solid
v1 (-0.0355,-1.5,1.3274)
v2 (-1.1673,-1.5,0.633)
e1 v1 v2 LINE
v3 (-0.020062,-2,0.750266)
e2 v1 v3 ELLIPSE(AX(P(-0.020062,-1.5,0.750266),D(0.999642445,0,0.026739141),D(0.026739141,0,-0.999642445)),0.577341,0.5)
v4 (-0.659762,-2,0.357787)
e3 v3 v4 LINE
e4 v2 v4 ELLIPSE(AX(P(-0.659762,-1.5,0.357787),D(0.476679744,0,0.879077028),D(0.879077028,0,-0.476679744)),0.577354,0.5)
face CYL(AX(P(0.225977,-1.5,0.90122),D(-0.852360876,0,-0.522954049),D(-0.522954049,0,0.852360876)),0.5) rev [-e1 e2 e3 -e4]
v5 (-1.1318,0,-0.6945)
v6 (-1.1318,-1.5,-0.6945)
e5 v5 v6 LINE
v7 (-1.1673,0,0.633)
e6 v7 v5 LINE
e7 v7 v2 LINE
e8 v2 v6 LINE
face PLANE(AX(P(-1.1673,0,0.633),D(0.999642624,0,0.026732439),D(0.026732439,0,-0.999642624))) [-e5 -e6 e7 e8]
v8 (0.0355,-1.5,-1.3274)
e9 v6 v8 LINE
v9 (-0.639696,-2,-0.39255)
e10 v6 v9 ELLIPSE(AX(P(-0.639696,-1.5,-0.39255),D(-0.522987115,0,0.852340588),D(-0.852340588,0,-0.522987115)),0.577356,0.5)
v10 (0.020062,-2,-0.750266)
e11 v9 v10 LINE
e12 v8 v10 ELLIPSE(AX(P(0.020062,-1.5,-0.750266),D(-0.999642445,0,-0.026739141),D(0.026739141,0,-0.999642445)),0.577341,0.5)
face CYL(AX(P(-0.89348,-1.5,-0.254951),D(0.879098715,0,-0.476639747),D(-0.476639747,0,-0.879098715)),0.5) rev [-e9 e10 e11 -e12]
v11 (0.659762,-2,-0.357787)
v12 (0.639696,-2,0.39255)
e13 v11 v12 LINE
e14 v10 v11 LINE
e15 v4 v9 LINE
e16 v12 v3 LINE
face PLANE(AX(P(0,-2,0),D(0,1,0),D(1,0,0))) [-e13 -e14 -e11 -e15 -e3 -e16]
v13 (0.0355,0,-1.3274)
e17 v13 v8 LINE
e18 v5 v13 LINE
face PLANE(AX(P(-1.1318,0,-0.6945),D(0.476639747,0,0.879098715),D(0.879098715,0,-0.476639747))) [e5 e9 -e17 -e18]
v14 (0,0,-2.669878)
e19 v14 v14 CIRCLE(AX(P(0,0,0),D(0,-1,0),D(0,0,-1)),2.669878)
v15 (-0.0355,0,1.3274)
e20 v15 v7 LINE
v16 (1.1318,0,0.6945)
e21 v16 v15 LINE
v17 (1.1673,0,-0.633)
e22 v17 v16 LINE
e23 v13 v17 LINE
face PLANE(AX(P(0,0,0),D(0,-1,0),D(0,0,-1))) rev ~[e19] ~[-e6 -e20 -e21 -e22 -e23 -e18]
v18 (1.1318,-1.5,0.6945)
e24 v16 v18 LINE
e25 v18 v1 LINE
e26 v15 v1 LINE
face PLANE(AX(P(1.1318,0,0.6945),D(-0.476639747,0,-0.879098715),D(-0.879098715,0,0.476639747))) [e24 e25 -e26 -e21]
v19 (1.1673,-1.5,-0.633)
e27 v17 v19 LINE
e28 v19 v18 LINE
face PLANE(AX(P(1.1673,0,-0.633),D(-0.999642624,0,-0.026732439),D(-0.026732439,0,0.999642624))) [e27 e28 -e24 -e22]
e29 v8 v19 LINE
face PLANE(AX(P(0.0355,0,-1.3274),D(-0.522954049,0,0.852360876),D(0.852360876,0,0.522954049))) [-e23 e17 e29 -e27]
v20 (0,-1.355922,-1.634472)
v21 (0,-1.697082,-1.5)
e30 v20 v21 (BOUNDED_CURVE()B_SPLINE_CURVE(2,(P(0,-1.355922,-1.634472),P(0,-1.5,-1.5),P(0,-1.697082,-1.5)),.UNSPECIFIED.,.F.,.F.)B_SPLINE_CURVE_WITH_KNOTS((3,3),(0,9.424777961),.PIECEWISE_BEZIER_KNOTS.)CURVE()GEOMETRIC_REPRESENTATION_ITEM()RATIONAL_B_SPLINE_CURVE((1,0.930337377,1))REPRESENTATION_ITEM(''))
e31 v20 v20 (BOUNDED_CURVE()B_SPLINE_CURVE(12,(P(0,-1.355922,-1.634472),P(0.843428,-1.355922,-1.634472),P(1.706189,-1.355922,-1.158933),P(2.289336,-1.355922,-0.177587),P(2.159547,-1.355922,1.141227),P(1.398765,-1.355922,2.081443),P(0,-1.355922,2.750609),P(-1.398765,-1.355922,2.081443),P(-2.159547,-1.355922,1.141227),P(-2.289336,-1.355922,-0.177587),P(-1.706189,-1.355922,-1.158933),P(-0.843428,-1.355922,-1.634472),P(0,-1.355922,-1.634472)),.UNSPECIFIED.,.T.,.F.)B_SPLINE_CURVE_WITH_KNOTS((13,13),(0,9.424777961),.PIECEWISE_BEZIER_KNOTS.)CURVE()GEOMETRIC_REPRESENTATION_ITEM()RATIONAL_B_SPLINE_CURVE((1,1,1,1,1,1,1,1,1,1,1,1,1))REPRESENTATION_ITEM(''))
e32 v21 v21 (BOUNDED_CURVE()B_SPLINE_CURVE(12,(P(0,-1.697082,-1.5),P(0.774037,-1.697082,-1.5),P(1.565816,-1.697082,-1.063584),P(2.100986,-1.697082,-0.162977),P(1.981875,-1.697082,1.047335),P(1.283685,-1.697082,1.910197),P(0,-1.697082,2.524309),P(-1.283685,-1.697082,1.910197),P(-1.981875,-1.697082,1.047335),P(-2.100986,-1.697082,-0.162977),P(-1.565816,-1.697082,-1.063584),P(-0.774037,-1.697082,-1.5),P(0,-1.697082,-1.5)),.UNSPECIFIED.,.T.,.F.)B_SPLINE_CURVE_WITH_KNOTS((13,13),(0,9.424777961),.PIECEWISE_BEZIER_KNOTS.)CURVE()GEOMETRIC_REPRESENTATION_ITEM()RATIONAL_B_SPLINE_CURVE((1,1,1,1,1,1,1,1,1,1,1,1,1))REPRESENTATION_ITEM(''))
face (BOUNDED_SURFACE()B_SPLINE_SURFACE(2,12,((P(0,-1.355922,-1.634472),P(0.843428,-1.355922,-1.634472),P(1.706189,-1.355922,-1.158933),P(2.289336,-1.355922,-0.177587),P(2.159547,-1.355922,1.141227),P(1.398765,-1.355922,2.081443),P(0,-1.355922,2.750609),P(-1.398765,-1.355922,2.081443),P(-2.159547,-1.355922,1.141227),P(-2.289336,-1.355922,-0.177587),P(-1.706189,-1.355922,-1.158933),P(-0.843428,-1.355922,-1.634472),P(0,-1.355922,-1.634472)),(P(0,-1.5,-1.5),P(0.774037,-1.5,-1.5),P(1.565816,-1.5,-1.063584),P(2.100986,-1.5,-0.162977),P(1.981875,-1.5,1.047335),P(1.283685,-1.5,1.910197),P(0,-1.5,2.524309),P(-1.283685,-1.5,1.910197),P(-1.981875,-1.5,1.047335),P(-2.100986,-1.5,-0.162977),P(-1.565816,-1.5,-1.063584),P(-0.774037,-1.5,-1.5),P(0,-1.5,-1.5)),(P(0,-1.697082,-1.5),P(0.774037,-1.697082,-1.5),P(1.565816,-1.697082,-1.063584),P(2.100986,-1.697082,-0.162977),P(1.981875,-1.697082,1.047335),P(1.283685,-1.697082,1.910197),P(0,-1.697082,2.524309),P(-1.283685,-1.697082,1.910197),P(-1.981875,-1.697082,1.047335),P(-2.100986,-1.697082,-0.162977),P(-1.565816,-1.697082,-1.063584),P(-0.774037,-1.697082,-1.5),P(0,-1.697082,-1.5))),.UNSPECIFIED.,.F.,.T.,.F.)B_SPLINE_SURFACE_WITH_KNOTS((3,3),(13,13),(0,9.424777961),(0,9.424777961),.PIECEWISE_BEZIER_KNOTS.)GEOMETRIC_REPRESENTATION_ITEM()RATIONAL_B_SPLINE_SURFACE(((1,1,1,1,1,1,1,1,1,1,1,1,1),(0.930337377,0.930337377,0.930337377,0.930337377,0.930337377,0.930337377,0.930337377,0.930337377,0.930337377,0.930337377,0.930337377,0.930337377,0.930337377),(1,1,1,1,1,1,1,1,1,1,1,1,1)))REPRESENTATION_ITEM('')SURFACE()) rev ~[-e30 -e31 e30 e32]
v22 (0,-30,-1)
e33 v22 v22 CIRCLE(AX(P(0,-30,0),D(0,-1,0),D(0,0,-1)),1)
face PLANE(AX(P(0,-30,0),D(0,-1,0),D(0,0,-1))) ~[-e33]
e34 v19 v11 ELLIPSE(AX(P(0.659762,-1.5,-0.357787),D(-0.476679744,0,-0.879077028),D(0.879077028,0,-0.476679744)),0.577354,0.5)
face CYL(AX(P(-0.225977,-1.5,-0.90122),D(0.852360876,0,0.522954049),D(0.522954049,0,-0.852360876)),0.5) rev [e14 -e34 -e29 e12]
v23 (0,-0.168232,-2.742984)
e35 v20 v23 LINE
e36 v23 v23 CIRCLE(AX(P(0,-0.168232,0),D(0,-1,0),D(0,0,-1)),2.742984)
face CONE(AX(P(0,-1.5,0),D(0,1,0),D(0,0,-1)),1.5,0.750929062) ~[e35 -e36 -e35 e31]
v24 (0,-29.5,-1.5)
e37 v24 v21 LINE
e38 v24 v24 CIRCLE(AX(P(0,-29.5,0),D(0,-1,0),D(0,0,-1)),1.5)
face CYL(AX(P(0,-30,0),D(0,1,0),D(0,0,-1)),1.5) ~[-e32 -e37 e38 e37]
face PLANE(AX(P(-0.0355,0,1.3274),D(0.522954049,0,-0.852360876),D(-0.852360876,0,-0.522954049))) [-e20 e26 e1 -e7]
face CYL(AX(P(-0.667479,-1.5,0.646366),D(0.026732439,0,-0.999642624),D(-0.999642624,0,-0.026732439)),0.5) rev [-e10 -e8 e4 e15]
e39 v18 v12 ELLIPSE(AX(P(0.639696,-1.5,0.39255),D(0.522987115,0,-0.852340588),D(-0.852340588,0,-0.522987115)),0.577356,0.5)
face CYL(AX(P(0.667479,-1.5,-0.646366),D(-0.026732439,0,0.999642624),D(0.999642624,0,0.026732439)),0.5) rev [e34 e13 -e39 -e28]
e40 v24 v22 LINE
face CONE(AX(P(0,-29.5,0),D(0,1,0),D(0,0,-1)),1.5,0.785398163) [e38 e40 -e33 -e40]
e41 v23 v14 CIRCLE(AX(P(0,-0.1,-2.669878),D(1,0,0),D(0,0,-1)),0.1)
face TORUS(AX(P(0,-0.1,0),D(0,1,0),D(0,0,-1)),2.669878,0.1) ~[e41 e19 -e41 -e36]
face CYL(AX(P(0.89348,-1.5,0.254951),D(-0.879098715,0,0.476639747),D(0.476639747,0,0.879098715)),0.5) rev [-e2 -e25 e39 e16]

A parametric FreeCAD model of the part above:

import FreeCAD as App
import Part
import Sketcher

V = App.Vector
Q = App.Units.Quantity


def edges_at(feature, points):
    """Names of the edges that pass closest to the given points."""
    edges = feature.Shape.Edges
    near = lambda p: min(range(len(edges)), key=lambda i: edges[i].distToShape(Part.Vertex(*p))[0])
    return sorted({f"Edge{near(p) + 1}" for p in points})

doc = App.newDocument("Part")
params = doc.addObject("Spreadsheet::Sheet", "Params")
for row, (alias, value) in enumerate([
    ("sketch1_width", "30 mm"),
    ("sketch1_height", "1.5 mm"),
    ("sketch1_height2", "2.9 mm"),
    ("revolution_angle", "360 deg"),
    ("pocket1_length", "2 mm"),
    ("fillet_radius", "0.5 mm"),
    ("fillet2_radius", "0.5 mm"),
    ("fillet3_radius", "0.1 mm"),
    ("chamfer_size", "0.5 mm"),
], start=1):
    params.set(f"A{row}", alias)
    params.set(f"B{row}", "=" + value)
    params.setAlias(f"B{row}", alias)

body = doc.addObject("PartDesign::Body", "Body")

# Sketch on YZ plane
sketch1 = body.newObject("Sketcher::SketchObject", "Sketch")
sketch1.AttachmentSupport = (doc.getObject("YZ_Plane"), [""])
sketch1.MapMode = "FlatFace"
sketch1.addGeometry(Part.LineSegment(V(-1.5, -1.5, 0), V(0, -2.9, 0)), False)
sketch1.addGeometry(Part.LineSegment(V(0, -2.9, 0), V(0, 0, 0)), False)
sketch1.addGeometry(Part.LineSegment(V(0, 0, 0), V(-30, 0, 0)), False)
sketch1.addGeometry(Part.LineSegment(V(-30, 0, 0), V(-30, -1.5, 0)), False)
sketch1.addGeometry(Part.LineSegment(V(-30, -1.5, 0), V(-1.5, -1.5, 0)), False)
sketch1.addConstraint(Sketcher.Constraint("Coincident", 0, 2, 1, 1))
sketch1.addConstraint(Sketcher.Constraint("Coincident", 1, 2, 2, 1))
sketch1.addConstraint(Sketcher.Constraint("Coincident", 2, 2, 3, 1))
sketch1.addConstraint(Sketcher.Constraint("Coincident", 3, 2, 4, 1))
sketch1.addConstraint(Sketcher.Constraint("Coincident", 4, 2, 0, 1))
sketch1.addConstraint(Sketcher.Constraint("Vertical", 1))
sketch1.addConstraint(Sketcher.Constraint("Horizontal", 2))
sketch1.addConstraint(Sketcher.Constraint("Vertical", 3))
sketch1.addConstraint(Sketcher.Constraint("Horizontal", 4))
sketch1.addConstraint(Sketcher.Constraint("Coincident", 1, 2, -1, 1))
sketch1.addConstraint(Sketcher.Constraint("DistanceX", 2, 2, 2, 1, Q("30 mm")))
sketch1.addConstraint(Sketcher.Constraint("DistanceY", 3, 2, 3, 1, Q("1.5 mm")))
sketch1.addConstraint(Sketcher.Constraint("DistanceX", 4, 2, -1, 1, Q("1.5 mm")))
sketch1.addConstraint(Sketcher.Constraint("DistanceY", 1, 1, 1, 2, Q("2.9 mm")))
sketch1.setExpression("Constraints[10]", "Params.sketch1_width")
sketch1.setExpression("Constraints[11]", "Params.sketch1_height")
sketch1.setExpression("Constraints[13]", "Params.sketch1_height2")
revolution = body.newObject("PartDesign::Revolution", "Revolution")
revolution.Profile = sketch1
revolution.ReferenceAxis = (sketch1, ["H_Axis"])
revolution.setExpression("Angle", "Params.revolution_angle")

# Sketch on XZ plane
sketch2 = body.newObject("Sketcher::SketchObject", "Sketch001")
sketch2.AttachmentSupport = (doc.getObject("XZ_Plane"), [""])
sketch2.MapMode = "FlatFace"
sketch2.addGeometry(Part.LineSegment(V(-1.1, -0.7, 0), V(-1.2, 0.6, 0)), False)
sketch2.addGeometry(Part.LineSegment(V(-1.2, 0.6, 0), V(0, 1.3, 0)), False)
sketch2.addGeometry(Part.LineSegment(V(0, 1.3, 0), V(1.1, 0.7, 0)), False)
sketch2.addGeometry(Part.LineSegment(V(1.1, 0.7, 0), V(1.2, -0.6, 0)), False)
sketch2.addGeometry(Part.LineSegment(V(1.2, -0.6, 0), V(0, -1.3, 0)), False)
sketch2.addGeometry(Part.LineSegment(V(0, -1.3, 0), V(-1.1, -0.7, 0)), False)
sketch2.addConstraint(Sketcher.Constraint("Coincident", 0, 2, 1, 1))
sketch2.addConstraint(Sketcher.Constraint("Coincident", 1, 2, 2, 1))
sketch2.addConstraint(Sketcher.Constraint("Coincident", 2, 2, 3, 1))
sketch2.addConstraint(Sketcher.Constraint("Coincident", 3, 2, 4, 1))
sketch2.addConstraint(Sketcher.Constraint("Coincident", 4, 2, 5, 1))
sketch2.addConstraint(Sketcher.Constraint("Coincident", 5, 2, 0, 1))
sketch2.addConstraint(Sketcher.Constraint("Symmetric", 0, 2, 3, 2, -1, 1))
sketch2.addConstraint(Sketcher.Constraint("Symmetric", 1, 2, 4, 2, -1, 1))
sketch2.addConstraint(Sketcher.Constraint("Symmetric", 2, 2, 5, 2, -1, 1))
sketch2.addConstraint(Sketcher.Constraint("Equal", 0, 1))
sketch2.addConstraint(Sketcher.Constraint("Equal", 1, 2))
sketch2.addConstraint(Sketcher.Constraint("Angle", 1, Q("31.5306 deg")))
sketch2.addConstraint(Sketcher.Constraint("Distance", 0, Q("1.328 mm")))
sketch2.addConstraint(Sketcher.Constraint("DistanceY", -1, 1, 0, 2, Q("0.633 mm")))
sketch2.addConstraint(Sketcher.Constraint("DistanceY", 2, 2, 1, 2, Q("0.633 mm")))
pocket1 = body.newObject("PartDesign::Pocket", "Pocket")
pocket1.Profile = sketch2
pocket1.setExpression("Length", "Params.pocket1_length")
pocket1.Reversed = True
doc.recompute()

fillet = body.newObject("PartDesign::Fillet", "Fillet")
fillet.Base = (pocket1, edges_at(pocket1, [
    (-1.15, -2, -0.031),
    (-0.601, -2, 0.98),
    (-0.548, -2, -1.011),
    (0.601, -2, -0.98),
    (0.548, -2, 1.011),
    (1.15, -2, 0.031),
]))
fillet.setExpression("Radius", "Params.fillet_radius")
doc.recompute()

fillet2 = body.newObject("PartDesign::Fillet", "Fillet001")
fillet2.Base = (fillet, edges_at(fillet, [(0, -1.5, 1.5)]))
fillet2.setExpression("Radius", "Params.fillet2_radius")
doc.recompute()

fillet3 = body.newObject("PartDesign::Fillet", "Fillet002")
fillet3.Base = (fillet2, edges_at(fillet2, [(0, 0, 2.9)]))
fillet3.setExpression("Radius", "Params.fillet3_radius")
doc.recompute()

chamfer = body.newObject("PartDesign::Chamfer", "Chamfer")
chamfer.Base = (fillet3, edges_at(fillet3, [(0, -30, 1.5)]))
chamfer.setExpression("Size", "Params.chamfer_size")

doc.recompute()
